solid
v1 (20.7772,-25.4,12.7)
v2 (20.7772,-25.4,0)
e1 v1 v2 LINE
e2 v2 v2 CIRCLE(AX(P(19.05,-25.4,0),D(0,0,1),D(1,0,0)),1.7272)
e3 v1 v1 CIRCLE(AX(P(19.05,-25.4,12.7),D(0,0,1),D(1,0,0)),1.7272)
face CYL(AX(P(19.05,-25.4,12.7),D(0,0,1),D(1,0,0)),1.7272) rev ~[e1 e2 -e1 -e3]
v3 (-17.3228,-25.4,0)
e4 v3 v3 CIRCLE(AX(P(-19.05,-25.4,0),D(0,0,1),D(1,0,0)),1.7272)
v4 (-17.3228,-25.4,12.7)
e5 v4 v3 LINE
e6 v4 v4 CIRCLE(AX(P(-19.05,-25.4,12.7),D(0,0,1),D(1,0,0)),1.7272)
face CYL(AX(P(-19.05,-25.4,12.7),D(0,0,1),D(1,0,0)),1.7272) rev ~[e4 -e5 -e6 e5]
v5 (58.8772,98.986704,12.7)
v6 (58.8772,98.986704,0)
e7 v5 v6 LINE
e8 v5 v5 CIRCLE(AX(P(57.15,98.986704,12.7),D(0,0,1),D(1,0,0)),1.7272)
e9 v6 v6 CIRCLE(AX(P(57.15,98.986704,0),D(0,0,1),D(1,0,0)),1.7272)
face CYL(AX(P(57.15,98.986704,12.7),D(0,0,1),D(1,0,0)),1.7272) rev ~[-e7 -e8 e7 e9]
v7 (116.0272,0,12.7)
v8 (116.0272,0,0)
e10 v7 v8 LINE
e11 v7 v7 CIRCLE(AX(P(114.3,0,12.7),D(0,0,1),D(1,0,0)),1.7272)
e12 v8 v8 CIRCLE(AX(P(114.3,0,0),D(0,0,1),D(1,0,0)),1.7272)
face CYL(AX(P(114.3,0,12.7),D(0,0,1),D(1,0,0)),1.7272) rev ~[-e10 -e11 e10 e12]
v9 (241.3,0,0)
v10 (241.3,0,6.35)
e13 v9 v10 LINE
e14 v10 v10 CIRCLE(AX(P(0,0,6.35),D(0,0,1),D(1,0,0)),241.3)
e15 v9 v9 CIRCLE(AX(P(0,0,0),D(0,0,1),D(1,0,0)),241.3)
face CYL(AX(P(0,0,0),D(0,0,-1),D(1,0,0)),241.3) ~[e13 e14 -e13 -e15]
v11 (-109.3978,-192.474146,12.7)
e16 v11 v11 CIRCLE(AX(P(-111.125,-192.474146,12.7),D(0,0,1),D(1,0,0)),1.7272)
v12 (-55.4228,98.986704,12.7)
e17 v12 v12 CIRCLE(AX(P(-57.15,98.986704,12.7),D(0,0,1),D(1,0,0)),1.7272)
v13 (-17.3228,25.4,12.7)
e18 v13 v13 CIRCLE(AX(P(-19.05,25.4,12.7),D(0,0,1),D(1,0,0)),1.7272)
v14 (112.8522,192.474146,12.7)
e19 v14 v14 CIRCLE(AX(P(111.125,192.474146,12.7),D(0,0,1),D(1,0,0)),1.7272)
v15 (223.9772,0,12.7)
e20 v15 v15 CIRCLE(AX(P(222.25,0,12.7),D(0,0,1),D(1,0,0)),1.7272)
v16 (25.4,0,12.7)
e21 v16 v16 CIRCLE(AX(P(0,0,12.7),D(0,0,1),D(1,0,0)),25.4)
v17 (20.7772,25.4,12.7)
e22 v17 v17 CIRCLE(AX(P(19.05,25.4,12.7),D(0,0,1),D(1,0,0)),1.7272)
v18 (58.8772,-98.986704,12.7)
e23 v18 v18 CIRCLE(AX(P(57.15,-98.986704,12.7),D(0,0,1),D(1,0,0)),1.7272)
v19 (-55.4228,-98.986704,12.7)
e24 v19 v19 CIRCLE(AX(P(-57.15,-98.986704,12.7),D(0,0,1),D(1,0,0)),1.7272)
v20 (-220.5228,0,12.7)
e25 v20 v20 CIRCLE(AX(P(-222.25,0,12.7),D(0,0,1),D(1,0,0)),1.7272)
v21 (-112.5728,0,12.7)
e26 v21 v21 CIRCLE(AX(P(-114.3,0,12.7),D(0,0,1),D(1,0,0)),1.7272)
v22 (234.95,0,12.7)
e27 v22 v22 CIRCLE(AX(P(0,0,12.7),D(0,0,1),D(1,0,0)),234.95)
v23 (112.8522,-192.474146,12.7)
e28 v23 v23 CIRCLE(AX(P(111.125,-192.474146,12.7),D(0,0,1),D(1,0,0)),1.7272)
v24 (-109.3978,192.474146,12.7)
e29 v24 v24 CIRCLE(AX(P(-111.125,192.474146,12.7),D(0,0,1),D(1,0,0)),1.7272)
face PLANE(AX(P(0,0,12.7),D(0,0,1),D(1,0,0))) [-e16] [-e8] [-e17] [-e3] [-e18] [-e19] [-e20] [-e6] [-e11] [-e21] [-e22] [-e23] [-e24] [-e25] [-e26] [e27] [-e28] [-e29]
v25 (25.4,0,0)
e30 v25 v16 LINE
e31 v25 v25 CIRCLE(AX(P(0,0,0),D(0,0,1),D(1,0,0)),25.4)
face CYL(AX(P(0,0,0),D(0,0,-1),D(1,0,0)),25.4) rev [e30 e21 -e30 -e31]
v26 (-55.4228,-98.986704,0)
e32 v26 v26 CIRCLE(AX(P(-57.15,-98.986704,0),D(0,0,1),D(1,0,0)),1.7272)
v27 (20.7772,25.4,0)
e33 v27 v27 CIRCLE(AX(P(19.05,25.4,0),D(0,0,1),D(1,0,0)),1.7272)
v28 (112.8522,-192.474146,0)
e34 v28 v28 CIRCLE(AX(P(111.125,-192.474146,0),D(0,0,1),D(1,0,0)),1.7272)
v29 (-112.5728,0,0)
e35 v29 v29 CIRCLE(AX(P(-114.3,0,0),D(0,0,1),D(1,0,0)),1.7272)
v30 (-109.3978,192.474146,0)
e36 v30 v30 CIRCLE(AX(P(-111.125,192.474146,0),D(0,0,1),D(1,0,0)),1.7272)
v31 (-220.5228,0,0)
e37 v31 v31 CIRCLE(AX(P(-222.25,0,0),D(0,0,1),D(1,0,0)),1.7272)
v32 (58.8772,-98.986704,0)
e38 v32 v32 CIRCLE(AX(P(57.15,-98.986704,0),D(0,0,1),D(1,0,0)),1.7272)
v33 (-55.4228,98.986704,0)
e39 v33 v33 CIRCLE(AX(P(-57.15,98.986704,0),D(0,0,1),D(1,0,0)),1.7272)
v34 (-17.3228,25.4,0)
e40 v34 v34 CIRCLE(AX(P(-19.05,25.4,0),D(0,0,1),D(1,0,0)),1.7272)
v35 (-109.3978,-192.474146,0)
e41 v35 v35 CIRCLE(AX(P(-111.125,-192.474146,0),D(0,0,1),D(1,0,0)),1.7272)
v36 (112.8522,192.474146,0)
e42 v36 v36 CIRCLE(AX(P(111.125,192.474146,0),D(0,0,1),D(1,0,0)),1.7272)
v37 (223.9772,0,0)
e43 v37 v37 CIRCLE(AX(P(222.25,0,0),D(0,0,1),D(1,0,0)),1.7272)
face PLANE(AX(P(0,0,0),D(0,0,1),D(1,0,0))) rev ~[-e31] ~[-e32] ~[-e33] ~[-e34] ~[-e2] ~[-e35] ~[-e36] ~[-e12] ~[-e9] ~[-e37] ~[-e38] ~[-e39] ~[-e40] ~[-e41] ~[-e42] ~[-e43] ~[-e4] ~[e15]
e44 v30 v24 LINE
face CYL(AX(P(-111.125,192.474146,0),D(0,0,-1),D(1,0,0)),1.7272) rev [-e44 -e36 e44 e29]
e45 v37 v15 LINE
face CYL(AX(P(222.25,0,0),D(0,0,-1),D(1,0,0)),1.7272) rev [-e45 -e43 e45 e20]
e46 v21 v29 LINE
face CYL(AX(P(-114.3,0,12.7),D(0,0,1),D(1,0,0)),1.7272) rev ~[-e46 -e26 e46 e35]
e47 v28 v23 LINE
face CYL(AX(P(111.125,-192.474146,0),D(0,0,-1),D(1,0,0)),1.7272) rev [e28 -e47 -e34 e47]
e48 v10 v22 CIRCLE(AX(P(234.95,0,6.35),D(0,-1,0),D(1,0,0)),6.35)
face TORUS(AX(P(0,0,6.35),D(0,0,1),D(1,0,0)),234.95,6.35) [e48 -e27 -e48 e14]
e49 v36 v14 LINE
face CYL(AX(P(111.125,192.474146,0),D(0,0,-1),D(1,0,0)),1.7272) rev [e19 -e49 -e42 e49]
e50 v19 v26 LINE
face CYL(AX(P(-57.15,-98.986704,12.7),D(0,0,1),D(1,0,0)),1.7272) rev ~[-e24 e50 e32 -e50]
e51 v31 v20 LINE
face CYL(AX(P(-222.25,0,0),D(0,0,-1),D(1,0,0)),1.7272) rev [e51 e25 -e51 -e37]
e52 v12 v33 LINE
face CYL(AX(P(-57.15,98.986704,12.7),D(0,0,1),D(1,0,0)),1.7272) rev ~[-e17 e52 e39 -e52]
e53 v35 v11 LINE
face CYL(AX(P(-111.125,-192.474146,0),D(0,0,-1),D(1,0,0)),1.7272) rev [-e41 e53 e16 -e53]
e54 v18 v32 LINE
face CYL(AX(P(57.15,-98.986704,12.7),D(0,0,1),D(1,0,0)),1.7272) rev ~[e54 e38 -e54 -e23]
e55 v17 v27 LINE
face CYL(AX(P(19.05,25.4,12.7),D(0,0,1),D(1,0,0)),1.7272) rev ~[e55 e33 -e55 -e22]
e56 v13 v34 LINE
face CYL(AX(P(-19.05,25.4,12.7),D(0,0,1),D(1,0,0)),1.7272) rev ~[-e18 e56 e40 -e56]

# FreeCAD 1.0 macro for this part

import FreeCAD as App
import Part
import Sketcher
Q = App.Units.Quantity


def edges_at(feature, points):
    """Names of the edges that pass closest to the given points."""
    edges = feature.Shape.Edges
    near = lambda p: min(range(len(edges)), key=lambda i: edges[i].distToShape(Part.Vertex(*p))[0])
    return sorted({f"Edge{near(p) + 1}" for p in points})

doc = App.newDocument("Part")
params = doc.addObject("Spreadsheet::Sheet", "Params")
for row, (alias, value) in enumerate([
    ("sketch1_diameter", "19 in"),
    ("sketch1_diameter2", "2 in"),
    ("sketch1_diameter3", "0.136 in"),
    ("pad1_length", "0.5 in"),
    ("sketch2_diameter", "0.136 in"),
    ("fillet_radius", "0.25 in"),
], start=1):
    params.set(f"A{row}", alias)
    params.set(f"B{row}", "=" + value)
    params.setAlias(f"B{row}", alias)

body = doc.addObject("PartDesign::Body", "Body")

sketch1 = body.newObject("Sketcher::SketchObject", "Sketch")
sketch1.AttachmentSupport = (doc.getObject("XY_Plane"), [""])
sketch1.MapMode = "FlatFace"
sketch1.addGeometry([
    Part.Circle(App.Vector(0, 0, 0), App.Vector(0, 0, 1), 241.3),
    Part.Circle(App.Vector(-111.1, -192.5, 0), App.Vector(0, 0, 1), 1.7),
    Part.Circle(App.Vector(111.1, -192.5, 0), App.Vector(0, 0, 1), 1.7),
    Part.Circle(App.Vector(-222.2, 0, 0), App.Vector(0, 0, 1), 1.7),
    Part.Circle(App.Vector(0, 0, 0), App.Vector(0, 0, 1), 25.4),
    Part.Circle(App.Vector(-111.1, 192.5, 0), App.Vector(0, 0, 1), 1.7),
    Part.Circle(App.Vector(222.2, 0, 0), App.Vector(0, 0, 1), 1.7),
    Part.Circle(App.Vector(111.1, 192.5, 0), App.Vector(0, 0, 1), 1.7),
], False)
sketch1.addConstraint([
    Sketcher.Constraint("Coincident", 0, 3, -1, 1),
    Sketcher.Constraint("Coincident", 4, 3, -1, 1),
    Sketcher.Constraint("Equal", 1, 2),
    Sketcher.Constraint("Equal", 2, 3),
    Sketcher.Constraint("Equal", 3, 5),
    Sketcher.Constraint("Equal", 5, 6),
    Sketcher.Constraint("Equal", 6, 7),
    Sketcher.Constraint("Symmetric", 2, 3, 5, 3, -1, 1),
    Sketcher.Constraint("Symmetric", 3, 3, 6, 3, -1, 1),
    Sketcher.Constraint("Symmetric", 1, 3, 7, 3, -1, 1),
    Sketcher.Constraint("Symmetric", 1, 3, 2, 3, -2),
    Sketcher.Constraint("PointOnObject", 3, 3, -1),
    Sketcher.Constraint("Diameter", 0, Q("19 in")),
    Sketcher.Constraint("Diameter", 4, Q("2 in")),
    Sketcher.Constraint("Diameter", 1, Q("0.136 in")),
    Sketcher.Constraint("DistanceX", 3, 3, -1, 1, Q("8.75 in")),
    Sketcher.Constraint("DistanceX", 1, 3, 2, 3, Q("8.75 in")),
    Sketcher.Constraint("DistanceY", 1, 3, 5, 3, Q("384.948292 mm")),
])
sketch1.setExpression("Constraints[12]", "Params.sketch1_diameter")
sketch1.setExpression("Constraints[13]", "Params.sketch1_diameter2")
sketch1.setExpression("Constraints[14]", "Params.sketch1_diameter3")
pad1 = body.newObject("PartDesign::Pad", "Pad")
pad1.Profile = sketch1
pad1.setExpression("Length", "Params.pad1_length")

sketch2 = body.newObject("Sketcher::SketchObject", "Sketch001")
sketch2.AttachmentSupport = (doc.getObject("XY_Plane"), [""])
sketch2.MapMode = "FlatFace"
sketch2.AttachmentOffset = App.Placement(App.Vector(0, 0, 0.5 * 25.4), App.Rotation())
sketch2.addGeometry([
    Part.Circle(App.Vector(-57.1, 99, 0), App.Vector(0, 0, 1), 1.7),
    Part.Circle(App.Vector(57.1, 99, 0), App.Vector(0, 0, 1), 1.7),
    Part.Circle(App.Vector(-114.3, 0, 0), App.Vector(0, 0, 1), 1.7),
    Part.Circle(App.Vector(-57.1, -99, 0), App.Vector(0, 0, 1), 1.7),
    Part.Circle(App.Vector(57.1, -99, 0), App.Vector(0, 0, 1), 1.7),
    Part.Circle(App.Vector(114.3, 0, 0), App.Vector(0, 0, 1), 1.7),
    Part.Circle(App.Vector(-19.1, -25.4, 0), App.Vector(0, 0, 1), 1.7),
    Part.Circle(App.Vector(19.1, -25.4, 0), App.Vector(0, 0, 1), 1.7),
    Part.Circle(App.Vector(19.1, 25.4, 0), App.Vector(0, 0, 1), 1.7),
    Part.Circle(App.Vector(-19.1, 25.4, 0), App.Vector(0, 0, 1), 1.7),
], False)
sketch2.addConstraint([
    Sketcher.Constraint("Equal", 0, 1),
    Sketcher.Constraint("Equal", 1, 2),
    Sketcher.Constraint("Equal", 2, 3),
    Sketcher.Constraint("Equal", 3, 4),
    Sketcher.Constraint("Equal", 4, 5),
    Sketcher.Constraint("Equal", 5, 6),
    Sketcher.Constraint("Equal", 6, 7),
    Sketcher.Constraint("Equal", 7, 8),
    Sketcher.Constraint("Equal", 8, 9),
    Sketcher.Constraint("Symmetric", 1, 3, 3, 3, -1, 1),
    Sketcher.Constraint("Symmetric", 0, 3, 4, 3, -1, 1),
    Sketcher.Constraint("Symmetric", 2, 3, 5, 3, -1, 1),
    Sketcher.Constraint("Symmetric", 6, 3, 8, 3, -1, 1),
    Sketcher.Constraint("Symmetric", 7, 3, 9, 3, -1, 1),
    Sketcher.Constraint("Symmetric", 0, 3, 1, 3, -2),
    Sketcher.Constraint("Symmetric", 6, 3, 7, 3, -2),
    Sketcher.Constraint("PointOnObject", 2, 3, -1),
    Sketcher.Constraint("Diameter", 0, Q("0.136 in")),
    Sketcher.Constraint("DistanceY", 6, 3, -1, 1, Q("1 in")),
    Sketcher.Constraint("DistanceX", 2, 3, 5, 3, Q("9 in")),
    Sketcher.Constraint("DistanceX", 6, 3, 4, 3, Q("3 in")),
    Sketcher.Constraint("DistanceX", 0, 3, 1, 3, Q("4.5 in")),
    Sketcher.Constraint("DistanceY", 3, 3, 0, 3, Q("197.973408 mm")),
])
sketch2.setExpression("Constraints[17]", "Params.sketch2_diameter")
pocket1 = body.newObject("PartDesign::Pocket", "Pocket")
pocket1.Profile = sketch2
pocket1.Type = "ThroughAll"
doc.recompute()

fillet = body.newObject("PartDesign::Fillet", "Fillet")
fillet.Base = (pocket1, edges_at(pocket1, [(-241.3, 0, 12.7)]))
fillet.setExpression("Radius", "Params.fillet_radius")

doc.recompute()
